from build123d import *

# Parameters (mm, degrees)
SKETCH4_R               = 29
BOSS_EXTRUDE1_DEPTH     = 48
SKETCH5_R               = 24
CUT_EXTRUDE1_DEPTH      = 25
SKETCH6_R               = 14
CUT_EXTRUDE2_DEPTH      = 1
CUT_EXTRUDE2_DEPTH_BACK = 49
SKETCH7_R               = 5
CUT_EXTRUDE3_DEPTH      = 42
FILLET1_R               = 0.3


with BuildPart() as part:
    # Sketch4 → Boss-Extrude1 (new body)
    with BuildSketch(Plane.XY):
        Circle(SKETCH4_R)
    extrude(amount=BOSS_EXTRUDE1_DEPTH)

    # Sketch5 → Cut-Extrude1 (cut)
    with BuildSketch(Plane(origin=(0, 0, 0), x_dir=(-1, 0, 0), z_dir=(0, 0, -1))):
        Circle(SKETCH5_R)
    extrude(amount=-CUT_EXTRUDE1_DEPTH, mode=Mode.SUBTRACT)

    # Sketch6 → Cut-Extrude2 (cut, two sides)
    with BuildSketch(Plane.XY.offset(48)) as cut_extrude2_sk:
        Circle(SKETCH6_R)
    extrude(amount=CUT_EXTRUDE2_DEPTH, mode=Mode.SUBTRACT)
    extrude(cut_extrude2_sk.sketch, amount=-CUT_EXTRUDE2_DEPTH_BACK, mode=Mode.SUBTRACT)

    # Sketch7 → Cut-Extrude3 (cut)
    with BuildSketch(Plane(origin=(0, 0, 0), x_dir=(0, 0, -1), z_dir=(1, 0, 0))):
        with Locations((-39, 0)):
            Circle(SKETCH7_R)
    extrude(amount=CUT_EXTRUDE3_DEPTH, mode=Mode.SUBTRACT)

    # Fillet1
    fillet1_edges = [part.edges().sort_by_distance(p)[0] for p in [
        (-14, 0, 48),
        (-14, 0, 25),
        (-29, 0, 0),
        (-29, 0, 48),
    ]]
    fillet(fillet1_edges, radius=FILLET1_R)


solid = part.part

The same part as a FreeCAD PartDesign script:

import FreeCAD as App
import Part
import Sketcher
Q = App.Units.Quantity


def edges_at(feature, points):
    """Names of the edges that pass closest to the given points."""
    edges = feature.Shape.Edges
    near = lambda p: min(range(len(edges)), key=lambda i: edges[i].distToShape(Part.Vertex(*p))[0])
    return sorted({f"Edge{near(p) + 1}" for p in points})

doc = App.newDocument("Part")
body = doc.addObject("PartDesign::Body", "Body")

# Sketch on XY plane
sketch1 = body.newObject("Sketcher::SketchObject", "Sketch")
sketch1.AttachmentSupport = (doc.getObject("XY_Plane"), [""])
sketch1.MapMode = "FlatFace"
sketch1.addGeometry(Part.Circle(App.Vector(0, 0, 0), App.Vector(0, 0, 1), 29), False)
sketch1.addConstraint(Sketcher.Constraint("Coincident", 0, 3, -1, 1))
sketch1.addConstraint(Sketcher.Constraint("Diameter", 0, Q("58 mm")))
pad1 = body.newObject("PartDesign::Pad", "Pad")
pad1.Profile = sketch1
pad1.Length = 48

# Sketch on XY plane
sketch2 = body.newObject("Sketcher::SketchObject", "Sketch001")
sketch2.AttachmentSupport = (doc.getObject("XY_Plane"), [""])
sketch2.MapMode = "FlatFace"
sketch2.addGeometry(Part.Circle(App.Vector(0, 0, 0), App.Vector(0, 0, 1), 24), False)
sketch2.addConstraint(Sketcher.Constraint("Coincident", 0, 3, -1, 1))
sketch2.addConstraint(Sketcher.Constraint("Diameter", 0, Q("48 mm")))
pocket1 = body.newObject("PartDesign::Pocket", "Pocket")
pocket1.Profile = sketch2
pocket1.Length = 25
pocket1.Reversed = True

# Sketch on XY plane
sketch3 = body.newObject("Sketcher::SketchObject", "Sketch002")
sketch3.AttachmentSupport = (doc.getObject("XY_Plane"), [""])
sketch3.MapMode = "FlatFace"
sketch3.AttachmentOffset = App.Placement(App.Vector(0, 0, 48), App.Rotation())
sketch3.addGeometry(Part.Circle(App.Vector(0, 0, 0), App.Vector(0, 0, 1), 14), False)
sketch3.addConstraint(Sketcher.Constraint("Coincident", 0, 3, -1, 1))
sketch3.addConstraint(Sketcher.Constraint("Diameter", 0, Q("28 mm")))
pocket2 = body.newObject("PartDesign::Pocket", "Pocket001")
pocket2.Profile = sketch3
pocket2.Type = "ThroughAll"
pocket2.Midplane = True

# Sketch on YZ plane
sketch4 = body.newObject("Sketcher::SketchObject", "Sketch003")
sketch4.AttachmentSupport = (doc.getObject("YZ_Plane"), [""])
sketch4.MapMode = "FlatFace"
sketch4.addGeometry(Part.Circle(App.Vector(0, 39, 0), App.Vector(0, 0, 1), 5), False)
sketch4.addConstraint(Sketcher.Constraint("PointOnObject", 0, 3, -2))
sketch4.addConstraint(Sketcher.Constraint("Diameter", 0, Q("10 mm")))
sketch4.addConstraint(Sketcher.Constraint("DistanceY", -1, 1, 0, 3, Q("39 mm")))
pocket3 = body.newObject("PartDesign::Pocket", "Pocket002")
pocket3.Profile = sketch4
pocket3.Length = 42
pocket3.Reversed = True
doc.recompute()

fillet = body.newObject("PartDesign::Fillet", "Fillet")
fillet.Base = (pocket3, edges_at(pocket3, [
    (-14, 0, 48),
    (-14, 0, 25),
    (-29, 0, 0),
    (-29, 0, 48),
]))
fillet.Radius = 0.3

doc.recompute()
